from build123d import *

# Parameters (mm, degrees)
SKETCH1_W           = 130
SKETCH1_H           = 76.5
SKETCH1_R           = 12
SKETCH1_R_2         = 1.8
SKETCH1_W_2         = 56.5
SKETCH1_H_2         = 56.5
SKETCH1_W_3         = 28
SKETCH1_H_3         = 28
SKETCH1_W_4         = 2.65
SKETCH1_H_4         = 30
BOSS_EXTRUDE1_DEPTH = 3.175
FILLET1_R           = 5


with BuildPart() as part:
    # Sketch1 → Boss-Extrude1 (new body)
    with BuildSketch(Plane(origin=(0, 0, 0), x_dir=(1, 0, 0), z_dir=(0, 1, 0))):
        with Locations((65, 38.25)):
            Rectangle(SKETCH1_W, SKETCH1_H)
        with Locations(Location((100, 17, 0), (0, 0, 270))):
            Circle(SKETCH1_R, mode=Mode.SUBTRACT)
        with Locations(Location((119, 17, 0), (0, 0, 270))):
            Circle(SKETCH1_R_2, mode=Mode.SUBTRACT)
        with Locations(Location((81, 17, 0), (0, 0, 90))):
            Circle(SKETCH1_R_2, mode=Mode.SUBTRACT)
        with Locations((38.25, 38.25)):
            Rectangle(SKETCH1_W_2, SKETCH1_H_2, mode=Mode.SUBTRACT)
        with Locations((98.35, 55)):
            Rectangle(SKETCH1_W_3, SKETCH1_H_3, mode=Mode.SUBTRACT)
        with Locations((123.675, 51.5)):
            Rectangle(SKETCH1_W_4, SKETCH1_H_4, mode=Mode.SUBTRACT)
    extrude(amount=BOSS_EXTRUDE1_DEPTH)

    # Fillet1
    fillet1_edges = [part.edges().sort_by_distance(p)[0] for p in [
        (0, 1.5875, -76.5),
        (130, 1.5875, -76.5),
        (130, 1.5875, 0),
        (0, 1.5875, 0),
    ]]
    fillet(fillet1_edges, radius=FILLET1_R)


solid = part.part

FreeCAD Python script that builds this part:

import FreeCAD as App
import Part
import Sketcher
from FreeCAD import Vector
Q = App.Units.Quantity


def edges_at(feature, points):
    """Names of the edges that pass closest to the given points."""
    edges = feature.Shape.Edges
    near = lambda p: min(range(len(edges)), key=lambda i: edges[i].distToShape(Part.Vertex(*p))[0])
    return sorted({f"Edge{near(p) + 1}" for p in points})


def add_polygon(sketch, points):
    """Adds a closed chain of lines whose ends are joined by coincident constraints."""
    first, n = sketch.GeometryCount, len(points)
    for a, b in zip(points, points[1:] + points[:1]):
        sketch.addGeometry(Part.LineSegment(App.Vector(*a, 0), App.Vector(*b, 0)), False)
    for i in range(n):
        sketch.addConstraint(Sketcher.Constraint("Coincident", first + i, 2, first + (i + 1) % n, 1))

doc = App.newDocument("Part")
body = doc.addObject("PartDesign::Body", "Body")

sketch1 = body.newObject("Sketcher::SketchObject", "Sketch")
sketch1.AttachmentSupport = (doc.getObject("XZ_Plane"), [""])
sketch1.MapMode = "FlatFace"
add_polygon(sketch1, [(0, -76.5), (0, 0), (130, 0), (130, -76.5)])
sketch1.addGeometry(Part.Circle(Vector(81, -17, 0), Vector(0, 0, 1), 1.8), False)
sketch1.addGeometry(Part.Circle(Vector(100, -17, 0), Vector(0, 0, 1), 12), False)
sketch1.addGeometry(Part.Circle(Vector(119, -17, 0), Vector(0, 0, 1), 1.8), False)
add_polygon(sketch1, [(66.5, -10), (10, -10), (10, -66.5), (66.5, -66.5)])
add_polygon(sketch1, [(125, -36.5), (122.3, -36.5), (122.3, -66.5), (125, -66.5)])
add_polygon(sketch1, [(112.3, -41), (84.3, -41), (84.3, -69), (112.3, -69)])
sketch1.addConstraint(Sketcher.Constraint("Vertical", 0))
sketch1.addConstraint(Sketcher.Constraint("Horizontal", 1))
sketch1.addConstraint(Sketcher.Constraint("Vertical", 2))
sketch1.addConstraint(Sketcher.Constraint("Horizontal", 3))
sketch1.addConstraint(Sketcher.Constraint("Horizontal", 7))
sketch1.addConstraint(Sketcher.Constraint("Vertical", 8))
sketch1.addConstraint(Sketcher.Constraint("Horizontal", 9))
sketch1.addConstraint(Sketcher.Constraint("Vertical", 10))
sketch1.addConstraint(Sketcher.Constraint("Horizontal", 11))
sketch1.addConstraint(Sketcher.Constraint("Vertical", 12))
sketch1.addConstraint(Sketcher.Constraint("Horizontal", 13))
sketch1.addConstraint(Sketcher.Constraint("Vertical", 14))
sketch1.addConstraint(Sketcher.Constraint("Horizontal", 15))
sketch1.addConstraint(Sketcher.Constraint("Vertical", 16))
sketch1.addConstraint(Sketcher.Constraint("Horizontal", 17))
sketch1.addConstraint(Sketcher.Constraint("Vertical", 18))
sketch1.addConstraint(Sketcher.Constraint("Coincident", 0, 2, -1, 1))
sketch1.addConstraint(Sketcher.Constraint("Equal", 4, 6))
sketch1.addConstraint(Sketcher.Constraint("Horizontal", 4, 3, 5, 3))
sketch1.addConstraint(Sketcher.Constraint("Horizontal", 5, 3, 6, 3))
sketch1.addConstraint(Sketcher.Constraint("Horizontal", 9, 2, 12, 2))
sketch1.addConstraint(Sketcher.Constraint("Equal", 9, 8))
sketch1.addConstraint(Sketcher.Constraint("Equal", 17, 16))
sketch1.addConstraint(Sketcher.Constraint("Diameter", 5, Q("24 mm")))
sketch1.addConstraint(Sketcher.Constraint("Diameter", 4, Q("3.6 mm")))
sketch1.addConstraint(Sketcher.Constraint("DistanceX", 1, 1, 1, 2, Q("130 mm")))
sketch1.addConstraint(Sketcher.Constraint("DistanceX", 15, 2, 15, 1, Q("28 mm")))
sketch1.addConstraint(Sketcher.Constraint("DistanceY", 12, 2, 12, 1, Q("30 mm")))
sketch1.addConstraint(Sketcher.Constraint("DistanceX", 7, 2, 7, 1, Q("56.5 mm")))
sketch1.addConstraint(Sketcher.Constraint("DistanceY", 0, 1, 0, 2, Q("76.5 mm")))
sketch1.addConstraint(Sketcher.Constraint("DistanceX", -1, 1, 4, 3, Q("81 mm")))
sketch1.addConstraint(Sketcher.Constraint("DistanceY", 4, 3, -1, 1, Q("17 mm")))
sketch1.addConstraint(Sketcher.Constraint("DistanceX", -1, 1, 5, 3, Q("100 mm")))
sketch1.addConstraint(Sketcher.Constraint("DistanceX", -1, 1, 6, 3, Q("119 mm")))
sketch1.addConstraint(Sketcher.Constraint("DistanceX", -1, 1, 7, 2, Q("10 mm")))
sketch1.addConstraint(Sketcher.Constraint("DistanceY", 7, 2, -1, 1, Q("10 mm")))
sketch1.addConstraint(Sketcher.Constraint("DistanceX", -1, 1, 13, 2, Q("125 mm")))
sketch1.addConstraint(Sketcher.Constraint("DistanceY", 15, 2, -1, 1, Q("41 mm")))
sketch1.addConstraint(Sketcher.Constraint("DistanceX", 15, 2, 11, 2, Q("38 mm")))
sketch1.addConstraint(Sketcher.Constraint("DistanceX", 11, 2, 11, 1, Q("2.65 mm")))
pad1 = body.newObject("PartDesign::Pad", "Pad")
pad1.Profile = sketch1
pad1.Length = 3.175
pad1.Reversed = True
doc.recompute()

fillet = body.newObject("PartDesign::Fillet", "Fillet")
fillet.Base = (pad1, edges_at(pad1, [
    (0, 1.587, -76.5),
    (130, 1.587, -76.5),
    (130, 1.587, 0),
    (0, 1.587, 0),
]))
fillet.Radius = 5

doc.recompute()
